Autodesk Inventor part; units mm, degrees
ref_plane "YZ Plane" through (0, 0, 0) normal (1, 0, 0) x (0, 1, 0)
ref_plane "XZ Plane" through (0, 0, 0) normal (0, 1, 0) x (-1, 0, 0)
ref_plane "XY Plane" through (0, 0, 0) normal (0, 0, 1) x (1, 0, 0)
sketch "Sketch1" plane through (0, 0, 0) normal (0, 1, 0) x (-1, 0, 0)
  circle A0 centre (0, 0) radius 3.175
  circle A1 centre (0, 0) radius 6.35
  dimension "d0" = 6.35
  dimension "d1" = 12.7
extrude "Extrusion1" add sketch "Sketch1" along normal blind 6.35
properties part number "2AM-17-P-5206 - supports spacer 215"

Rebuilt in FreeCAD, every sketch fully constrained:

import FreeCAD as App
import Part
import Sketcher
Q = App.Units.Quantity

doc = App.newDocument("Part")
params = doc.addObject("Spreadsheet::Sheet", "Params")
for row, (alias, value) in enumerate([
    ("sketch1_diameter", "0.5 in"),
    ("sketch1_diameter2", "0.25 in"),
    ("pad1_length", "0.25 in"),
], start=1):
    params.set(f"A{row}", alias)
    params.set(f"B{row}", "=" + value)
    params.setAlias(f"B{row}", alias)

body = doc.addObject("PartDesign::Body", "Body")

# Sketch on XZ plane
sketch1 = body.newObject("Sketcher::SketchObject", "Sketch")
sketch1.AttachmentSupport = (doc.getObject("XZ_Plane"), [""])
sketch1.MapMode = "FlatFace"
sketch1.addGeometry([
    Part.Circle(App.Vector(0, 0, 0), App.Vector(0, 0, 1), 6.3),
    Part.Circle(App.Vector(0, 0, 0), App.Vector(0, 0, 1), 3.2),
], False)
sketch1.addConstraint([
    Sketcher.Constraint("Coincident", 0, 3, -1, 1),
    Sketcher.Constraint("Coincident", 1, 3, -1, 1),
    Sketcher.Constraint("Diameter", 0, Q("0.5 in")),
    Sketcher.Constraint("Diameter", 1, Q("0.25 in")),
])
sketch1.setExpression("Constraints[2]", "Params.sketch1_diameter")
sketch1.setExpression("Constraints[3]", "Params.sketch1_diameter2")
pad1 = body.newObject("PartDesign::Pad", "Pad")
pad1.Profile = sketch1
pad1.setExpression("Length", "Params.pad1_length")
pad1.Reversed = True

doc.recompute()
